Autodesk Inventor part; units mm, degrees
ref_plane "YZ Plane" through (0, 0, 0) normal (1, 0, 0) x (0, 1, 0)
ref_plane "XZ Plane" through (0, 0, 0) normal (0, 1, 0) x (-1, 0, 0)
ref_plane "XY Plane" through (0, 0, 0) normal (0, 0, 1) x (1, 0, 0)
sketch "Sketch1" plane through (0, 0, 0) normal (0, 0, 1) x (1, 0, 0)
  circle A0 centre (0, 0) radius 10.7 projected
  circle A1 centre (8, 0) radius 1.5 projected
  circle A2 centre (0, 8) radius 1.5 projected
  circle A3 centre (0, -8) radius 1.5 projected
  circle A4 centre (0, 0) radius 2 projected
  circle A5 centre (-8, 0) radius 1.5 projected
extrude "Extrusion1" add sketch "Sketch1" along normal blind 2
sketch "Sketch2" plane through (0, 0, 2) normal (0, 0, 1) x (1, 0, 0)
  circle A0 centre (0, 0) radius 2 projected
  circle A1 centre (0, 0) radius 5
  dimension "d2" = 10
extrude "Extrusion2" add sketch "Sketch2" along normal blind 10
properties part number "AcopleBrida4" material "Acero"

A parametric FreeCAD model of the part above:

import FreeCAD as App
import Part
import Sketcher

V = App.Vector

doc = App.newDocument("Part")
body = doc.addObject("PartDesign::Body", "Body")

# Sketch on XY plane
sketch1 = doc.addObject("Sketcher::SketchObject", "Sketch")
body.addObject(sketch1)
sketch1.AttachmentSupport = (doc.XY_Plane, [""])
sketch1.MapMode = "FlatFace"
sketch1.addGeometry(Part.Circle(V(0, 0, 0), V(0, 0, 1), 10.7), False)
sketch1.addGeometry(Part.Circle(V(0, -8, 0), V(0, 0, 1), 1.5), False)
sketch1.addGeometry(Part.Circle(V(-8, 0, 0), V(0, 0, 1), 1.5), False)
sketch1.addGeometry(Part.Circle(V(0, 0, 0), V(0, 0, 1), 2), False)
sketch1.addGeometry(Part.Circle(V(8, 0, 0), V(0, 0, 1), 1.5), False)
sketch1.addGeometry(Part.Circle(V(0, 8, 0), V(0, 0, 1), 1.5), False)
sketch1.addConstraint(Sketcher.Constraint("Coincident", 0, 3, -1, 1))
sketch1.addConstraint(Sketcher.Constraint("Coincident", 3, 3, -1, 1))
sketch1.addConstraint(Sketcher.Constraint("Equal", 1, 2))
sketch1.addConstraint(Sketcher.Constraint("Equal", 2, 4))
sketch1.addConstraint(Sketcher.Constraint("Equal", 4, 5))
sketch1.addConstraint(Sketcher.Constraint("Symmetric", 2, 3, 4, 3, -1, 1))
sketch1.addConstraint(Sketcher.Constraint("Symmetric", 1, 3, 5, 3, -1, 1))
sketch1.addConstraint(Sketcher.Constraint("PointOnObject", 1, 3, -2))
sketch1.addConstraint(Sketcher.Constraint("PointOnObject", 2, 3, -1))
sketch1.addConstraint(Sketcher.Constraint("Diameter", 1, 3.0))
sketch1.addConstraint(Sketcher.Constraint("Diameter", 3, 4.0))
sketch1.addConstraint(Sketcher.Constraint("Diameter", 0, 21.4))
sketch1.addConstraint(Sketcher.Constraint("DistanceY", 1, 3, -1, 1, 8.0))
sketch1.addConstraint(Sketcher.Constraint("DistanceX", 2, 3, -1, 1, 8.0))
pad1 = doc.addObject("PartDesign::Pad", "Pad")
body.addObject(pad1)
pad1.Profile = sketch1
pad1.Length = 2

# Sketch on XY plane
sketch2 = doc.addObject("Sketcher::SketchObject", "Sketch001")
body.addObject(sketch2)
sketch2.AttachmentSupport = (doc.XY_Plane, [""])
sketch2.MapMode = "FlatFace"
sketch2.AttachmentOffset = App.Placement(V(0, 0, 2), App.Rotation())
sketch2.addGeometry(Part.Circle(V(0, 0, 0), V(0, 0, 1), 5), False)
sketch2.addGeometry(Part.Circle(V(0, 0, 0), V(0, 0, 1), 2), False)
sketch2.addConstraint(Sketcher.Constraint("Coincident", 0, 3, -1, 1))
sketch2.addConstraint(Sketcher.Constraint("Coincident", 1, 3, -1, 1))
sketch2.addConstraint(Sketcher.Constraint("Diameter", 0, 10.0))
sketch2.addConstraint(Sketcher.Constraint("Diameter", 1, 4.0))
pad2 = doc.addObject("PartDesign::Pad", "Pad001")
body.addObject(pad2)
pad2.Profile = sketch2
pad2.Length = 10

doc.recompute()
